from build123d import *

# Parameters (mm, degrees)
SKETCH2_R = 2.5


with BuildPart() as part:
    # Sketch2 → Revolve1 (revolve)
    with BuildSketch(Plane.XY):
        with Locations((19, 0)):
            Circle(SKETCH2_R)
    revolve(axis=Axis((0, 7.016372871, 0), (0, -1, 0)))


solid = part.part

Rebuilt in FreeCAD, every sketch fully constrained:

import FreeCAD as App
import Part
import Sketcher
from FreeCAD import Vector
Q = App.Units.Quantity

doc = App.newDocument("Part")
body = doc.addObject("PartDesign::Body", "Body")

sketch1 = doc.addObject("Sketcher::SketchObject", "Sketch")
body.addObject(sketch1)
sketch1.AttachmentSupport = (doc.XY_Plane, [""])
sketch1.MapMode = "FlatFace"
sketch1.addGeometry(Part.Circle(Vector(19, 0, 0), Vector(0, 0, 1), 2.5), False)
sketch1.addConstraint(Sketcher.Constraint("PointOnObject", 0, 3, -1))
sketch1.addConstraint(Sketcher.Constraint("Diameter", 0, Q("5 mm")))
sketch1.addConstraint(Sketcher.Constraint("DistanceX", -1, 1, 0, 3, Q("19 mm")))
revolution = doc.addObject("PartDesign::Revolution", "Revolution")
body.addObject(revolution)
revolution.Profile = sketch1
revolution.ReferenceAxis = (sketch1, ["V_Axis"])
revolution.Angle = 360

doc.recompute()
